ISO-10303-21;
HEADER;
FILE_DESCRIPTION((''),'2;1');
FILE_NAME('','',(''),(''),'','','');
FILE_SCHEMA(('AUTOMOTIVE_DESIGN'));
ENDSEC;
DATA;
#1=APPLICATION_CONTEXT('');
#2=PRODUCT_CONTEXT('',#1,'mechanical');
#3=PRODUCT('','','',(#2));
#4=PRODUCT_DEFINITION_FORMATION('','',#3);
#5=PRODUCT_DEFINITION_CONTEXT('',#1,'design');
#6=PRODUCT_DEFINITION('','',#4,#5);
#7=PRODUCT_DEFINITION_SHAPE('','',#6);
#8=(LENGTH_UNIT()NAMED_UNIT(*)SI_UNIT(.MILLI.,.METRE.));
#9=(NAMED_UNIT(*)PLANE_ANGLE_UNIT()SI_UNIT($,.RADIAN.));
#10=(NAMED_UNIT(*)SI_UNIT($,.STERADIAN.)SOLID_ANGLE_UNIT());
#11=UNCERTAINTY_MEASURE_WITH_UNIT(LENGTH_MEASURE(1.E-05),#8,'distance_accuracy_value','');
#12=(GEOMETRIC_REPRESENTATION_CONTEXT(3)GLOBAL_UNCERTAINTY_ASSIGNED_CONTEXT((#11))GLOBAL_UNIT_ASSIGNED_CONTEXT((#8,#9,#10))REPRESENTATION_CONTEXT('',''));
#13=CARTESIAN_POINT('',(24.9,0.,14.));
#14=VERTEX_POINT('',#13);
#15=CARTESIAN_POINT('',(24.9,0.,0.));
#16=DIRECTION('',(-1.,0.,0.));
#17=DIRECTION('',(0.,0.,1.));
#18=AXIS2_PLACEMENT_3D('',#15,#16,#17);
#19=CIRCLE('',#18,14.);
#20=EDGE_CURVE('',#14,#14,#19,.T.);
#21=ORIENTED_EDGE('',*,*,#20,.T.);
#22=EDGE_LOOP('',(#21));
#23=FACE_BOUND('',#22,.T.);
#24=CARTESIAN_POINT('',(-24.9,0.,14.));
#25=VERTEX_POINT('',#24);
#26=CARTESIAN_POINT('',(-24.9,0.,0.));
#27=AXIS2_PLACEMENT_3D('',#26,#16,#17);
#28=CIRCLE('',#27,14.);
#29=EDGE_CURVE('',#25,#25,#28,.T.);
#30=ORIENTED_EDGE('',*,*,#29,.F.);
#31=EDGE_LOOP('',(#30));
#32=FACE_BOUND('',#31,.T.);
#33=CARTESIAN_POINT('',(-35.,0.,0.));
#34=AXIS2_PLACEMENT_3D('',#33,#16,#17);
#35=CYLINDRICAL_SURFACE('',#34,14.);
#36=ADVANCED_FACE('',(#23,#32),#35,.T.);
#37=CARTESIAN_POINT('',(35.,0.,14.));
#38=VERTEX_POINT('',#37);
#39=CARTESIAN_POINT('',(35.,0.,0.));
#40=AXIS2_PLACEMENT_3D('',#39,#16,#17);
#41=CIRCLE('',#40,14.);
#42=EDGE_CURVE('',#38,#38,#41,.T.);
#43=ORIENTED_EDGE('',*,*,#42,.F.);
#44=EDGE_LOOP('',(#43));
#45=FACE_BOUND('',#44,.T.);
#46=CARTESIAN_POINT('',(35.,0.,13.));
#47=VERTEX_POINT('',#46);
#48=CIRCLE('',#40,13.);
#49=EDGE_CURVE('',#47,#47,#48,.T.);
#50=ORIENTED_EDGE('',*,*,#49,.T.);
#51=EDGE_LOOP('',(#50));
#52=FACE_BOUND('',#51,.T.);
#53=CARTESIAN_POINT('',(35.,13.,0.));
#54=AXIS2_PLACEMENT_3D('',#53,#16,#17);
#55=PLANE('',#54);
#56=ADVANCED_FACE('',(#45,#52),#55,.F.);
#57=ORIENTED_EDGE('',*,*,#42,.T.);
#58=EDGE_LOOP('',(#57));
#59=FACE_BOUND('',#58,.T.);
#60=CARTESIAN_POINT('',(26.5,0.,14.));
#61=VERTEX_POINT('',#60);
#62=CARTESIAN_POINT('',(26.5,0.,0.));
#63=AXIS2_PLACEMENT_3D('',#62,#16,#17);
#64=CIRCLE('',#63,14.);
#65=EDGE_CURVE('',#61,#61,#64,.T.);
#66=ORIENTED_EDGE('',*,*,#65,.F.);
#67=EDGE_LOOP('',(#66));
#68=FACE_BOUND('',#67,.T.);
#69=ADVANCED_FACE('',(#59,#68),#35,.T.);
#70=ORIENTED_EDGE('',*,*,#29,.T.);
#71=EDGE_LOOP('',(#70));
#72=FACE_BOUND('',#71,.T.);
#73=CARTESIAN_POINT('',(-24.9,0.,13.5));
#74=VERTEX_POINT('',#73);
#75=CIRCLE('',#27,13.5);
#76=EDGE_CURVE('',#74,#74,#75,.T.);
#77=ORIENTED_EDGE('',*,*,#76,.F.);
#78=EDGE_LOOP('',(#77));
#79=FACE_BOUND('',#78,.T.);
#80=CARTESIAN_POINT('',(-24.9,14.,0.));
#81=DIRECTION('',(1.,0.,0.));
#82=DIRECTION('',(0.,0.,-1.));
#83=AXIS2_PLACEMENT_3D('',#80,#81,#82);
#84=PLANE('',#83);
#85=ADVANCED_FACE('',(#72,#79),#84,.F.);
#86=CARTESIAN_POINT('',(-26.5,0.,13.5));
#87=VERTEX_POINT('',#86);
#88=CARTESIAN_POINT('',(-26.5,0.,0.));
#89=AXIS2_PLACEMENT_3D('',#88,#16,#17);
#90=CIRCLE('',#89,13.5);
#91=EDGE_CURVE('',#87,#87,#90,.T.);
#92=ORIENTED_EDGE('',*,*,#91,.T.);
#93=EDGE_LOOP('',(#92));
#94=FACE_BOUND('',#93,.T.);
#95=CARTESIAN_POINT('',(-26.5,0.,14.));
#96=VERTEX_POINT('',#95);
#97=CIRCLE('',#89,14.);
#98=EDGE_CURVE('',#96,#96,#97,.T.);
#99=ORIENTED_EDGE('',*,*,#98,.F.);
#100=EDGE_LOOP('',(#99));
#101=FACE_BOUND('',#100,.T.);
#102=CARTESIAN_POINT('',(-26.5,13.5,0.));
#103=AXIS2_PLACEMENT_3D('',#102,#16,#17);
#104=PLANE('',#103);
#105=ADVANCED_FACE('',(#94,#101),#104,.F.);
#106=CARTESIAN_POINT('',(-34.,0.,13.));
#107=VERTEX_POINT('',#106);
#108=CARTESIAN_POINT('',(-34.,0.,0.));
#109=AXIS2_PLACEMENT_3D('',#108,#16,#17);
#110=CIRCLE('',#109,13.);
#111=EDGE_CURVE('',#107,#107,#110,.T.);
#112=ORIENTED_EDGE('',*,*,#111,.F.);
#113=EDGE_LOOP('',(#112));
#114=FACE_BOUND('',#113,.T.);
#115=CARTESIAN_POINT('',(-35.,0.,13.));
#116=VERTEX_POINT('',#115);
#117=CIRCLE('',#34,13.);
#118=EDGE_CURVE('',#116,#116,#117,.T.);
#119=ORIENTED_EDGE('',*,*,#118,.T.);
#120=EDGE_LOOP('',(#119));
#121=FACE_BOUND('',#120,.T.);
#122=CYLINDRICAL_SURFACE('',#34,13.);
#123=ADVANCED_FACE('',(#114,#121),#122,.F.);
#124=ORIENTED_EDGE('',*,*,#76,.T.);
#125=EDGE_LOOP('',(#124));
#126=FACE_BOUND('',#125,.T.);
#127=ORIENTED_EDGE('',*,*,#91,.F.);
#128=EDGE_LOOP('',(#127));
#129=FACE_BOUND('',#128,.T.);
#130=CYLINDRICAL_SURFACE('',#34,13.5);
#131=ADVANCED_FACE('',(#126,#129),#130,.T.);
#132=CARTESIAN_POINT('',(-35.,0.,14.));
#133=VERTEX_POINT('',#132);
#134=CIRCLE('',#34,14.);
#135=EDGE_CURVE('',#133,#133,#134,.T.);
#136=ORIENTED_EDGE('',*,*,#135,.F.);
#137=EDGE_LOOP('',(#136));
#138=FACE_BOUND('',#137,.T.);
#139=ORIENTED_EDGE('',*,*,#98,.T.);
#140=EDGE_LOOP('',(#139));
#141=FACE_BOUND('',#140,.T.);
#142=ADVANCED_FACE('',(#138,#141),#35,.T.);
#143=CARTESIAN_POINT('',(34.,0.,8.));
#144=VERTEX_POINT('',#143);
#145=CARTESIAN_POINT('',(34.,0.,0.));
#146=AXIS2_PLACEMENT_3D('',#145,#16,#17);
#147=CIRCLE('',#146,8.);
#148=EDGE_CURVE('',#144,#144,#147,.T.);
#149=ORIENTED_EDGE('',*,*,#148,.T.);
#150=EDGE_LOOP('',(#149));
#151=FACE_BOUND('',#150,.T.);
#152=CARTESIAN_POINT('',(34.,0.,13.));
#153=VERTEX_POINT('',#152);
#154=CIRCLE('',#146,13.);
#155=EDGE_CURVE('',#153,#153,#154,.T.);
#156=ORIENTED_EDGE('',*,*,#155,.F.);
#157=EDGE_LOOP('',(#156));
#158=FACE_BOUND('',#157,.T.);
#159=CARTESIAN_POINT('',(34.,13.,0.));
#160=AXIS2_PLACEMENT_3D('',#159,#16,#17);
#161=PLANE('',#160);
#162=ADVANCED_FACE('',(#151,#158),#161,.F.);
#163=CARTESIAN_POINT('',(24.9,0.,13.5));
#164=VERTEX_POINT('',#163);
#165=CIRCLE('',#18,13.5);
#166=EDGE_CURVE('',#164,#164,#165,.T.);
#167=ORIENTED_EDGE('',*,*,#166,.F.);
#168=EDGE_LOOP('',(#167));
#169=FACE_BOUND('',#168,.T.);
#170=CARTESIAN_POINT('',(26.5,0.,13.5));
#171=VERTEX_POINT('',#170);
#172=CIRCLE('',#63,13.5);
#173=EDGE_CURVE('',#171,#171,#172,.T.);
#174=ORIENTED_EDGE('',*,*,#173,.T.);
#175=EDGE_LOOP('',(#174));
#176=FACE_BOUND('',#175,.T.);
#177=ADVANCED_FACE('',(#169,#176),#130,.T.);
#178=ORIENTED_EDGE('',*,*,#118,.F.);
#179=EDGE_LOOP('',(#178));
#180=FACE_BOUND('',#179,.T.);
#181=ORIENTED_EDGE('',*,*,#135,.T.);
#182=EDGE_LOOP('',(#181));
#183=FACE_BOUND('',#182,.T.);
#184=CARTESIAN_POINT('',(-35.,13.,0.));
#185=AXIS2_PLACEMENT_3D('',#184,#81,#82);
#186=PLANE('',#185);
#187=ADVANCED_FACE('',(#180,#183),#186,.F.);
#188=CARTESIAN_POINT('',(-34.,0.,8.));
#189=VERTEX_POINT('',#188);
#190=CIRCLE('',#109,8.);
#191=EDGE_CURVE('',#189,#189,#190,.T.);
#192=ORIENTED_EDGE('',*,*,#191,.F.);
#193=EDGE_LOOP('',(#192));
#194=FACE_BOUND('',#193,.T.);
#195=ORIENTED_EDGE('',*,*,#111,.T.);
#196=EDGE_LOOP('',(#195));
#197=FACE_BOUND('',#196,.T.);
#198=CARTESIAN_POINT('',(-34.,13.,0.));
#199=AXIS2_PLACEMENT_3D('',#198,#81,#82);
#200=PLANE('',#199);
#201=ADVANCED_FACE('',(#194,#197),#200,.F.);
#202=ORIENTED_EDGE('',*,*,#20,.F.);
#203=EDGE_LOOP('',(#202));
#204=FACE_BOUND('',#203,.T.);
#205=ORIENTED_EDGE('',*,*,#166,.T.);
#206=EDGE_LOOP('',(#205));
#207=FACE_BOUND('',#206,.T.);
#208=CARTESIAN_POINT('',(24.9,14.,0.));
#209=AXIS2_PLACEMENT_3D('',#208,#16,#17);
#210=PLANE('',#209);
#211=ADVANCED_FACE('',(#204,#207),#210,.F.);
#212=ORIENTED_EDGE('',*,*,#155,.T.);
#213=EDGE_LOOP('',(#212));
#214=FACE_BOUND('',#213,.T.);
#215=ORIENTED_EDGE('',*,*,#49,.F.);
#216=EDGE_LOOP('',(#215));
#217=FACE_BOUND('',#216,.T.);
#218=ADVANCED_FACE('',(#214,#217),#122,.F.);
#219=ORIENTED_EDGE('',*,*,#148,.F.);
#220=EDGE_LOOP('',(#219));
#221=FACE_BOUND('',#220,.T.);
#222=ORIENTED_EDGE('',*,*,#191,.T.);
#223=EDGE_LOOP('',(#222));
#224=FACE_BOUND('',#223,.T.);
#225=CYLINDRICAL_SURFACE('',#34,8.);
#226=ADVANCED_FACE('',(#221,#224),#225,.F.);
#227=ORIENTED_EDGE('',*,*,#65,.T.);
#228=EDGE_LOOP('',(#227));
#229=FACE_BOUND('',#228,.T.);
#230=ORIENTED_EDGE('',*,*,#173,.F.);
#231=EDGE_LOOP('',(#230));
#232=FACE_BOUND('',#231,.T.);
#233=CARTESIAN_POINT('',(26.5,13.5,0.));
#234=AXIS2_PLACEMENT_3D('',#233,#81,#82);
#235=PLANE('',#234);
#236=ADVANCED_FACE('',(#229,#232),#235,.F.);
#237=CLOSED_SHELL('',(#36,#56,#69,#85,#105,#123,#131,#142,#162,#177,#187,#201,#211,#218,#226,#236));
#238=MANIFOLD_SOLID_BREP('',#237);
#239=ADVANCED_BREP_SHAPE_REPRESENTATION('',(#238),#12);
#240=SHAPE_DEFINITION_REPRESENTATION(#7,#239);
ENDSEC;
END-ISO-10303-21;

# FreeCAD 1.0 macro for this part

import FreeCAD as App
import Part
import Sketcher

doc = App.newDocument("Part")
body = doc.addObject("PartDesign::Body", "Body")

# Sketch on XY plane
sketch1 = body.newObject("Sketcher::SketchObject", "Sketch")
sketch1.AttachmentSupport = (doc.getObject("XY_Plane"), [""])
sketch1.MapMode = "FlatFace"
sketch1.addGeometry([
    Part.LineSegment(App.Vector(24.9, 13.5, 0), App.Vector(24.9, 14, 0)),  # 0
    Part.LineSegment(App.Vector(24.9, 14, 0), App.Vector(-24.9, 14, 0)),  # 1
    Part.LineSegment(App.Vector(-24.9, 14, 0), App.Vector(-24.9, 13.5, 0)),  # 2
    Part.LineSegment(App.Vector(-24.9, 13.5, 0), App.Vector(-26.5, 13.5, 0)),  # 3
    Part.LineSegment(App.Vector(-26.5, 13.5, 0), App.Vector(-26.5, 14, 0)),  # 4
    Part.LineSegment(App.Vector(-26.5, 14, 0), App.Vector(-35, 14, 0)),  # 5
    Part.LineSegment(App.Vector(-35, 14, 0), App.Vector(-35, 13, 0)),  # 6
    Part.LineSegment(App.Vector(-35, 13, 0), App.Vector(-34, 13, 0)),  # 7
    Part.LineSegment(App.Vector(-34, 13, 0), App.Vector(-34, 8, 0)),  # 8
    Part.LineSegment(App.Vector(-34, 8, 0), App.Vector(34, 8, 0)),  # 9
    Part.LineSegment(App.Vector(34, 8, 0), App.Vector(34, 13, 0)),  # 10
    Part.LineSegment(App.Vector(34, 13, 0), App.Vector(35, 13, 0)),  # 11
    Part.LineSegment(App.Vector(35, 13, 0), App.Vector(35, 14, 0)),  # 12
    Part.LineSegment(App.Vector(35, 14, 0), App.Vector(26.5, 14, 0)),  # 13
    Part.LineSegment(App.Vector(26.5, 14, 0), App.Vector(26.5, 13.5, 0)),  # 14
    Part.LineSegment(App.Vector(26.5, 13.5, 0), App.Vector(24.9, 13.5, 0)),  # 15
], False)
sketch1.addConstraint([
    Sketcher.Constraint("Coincident", 0, 2, 1, 1),
    Sketcher.Constraint("Coincident", 1, 2, 2, 1),
    Sketcher.Constraint("Coincident", 2, 2, 3, 1),
    Sketcher.Constraint("Coincident", 3, 2, 4, 1),
    Sketcher.Constraint("Coincident", 4, 2, 5, 1),
    Sketcher.Constraint("Coincident", 5, 2, 6, 1),
    Sketcher.Constraint("Coincident", 6, 2, 7, 1),
    Sketcher.Constraint("Coincident", 7, 2, 8, 1),
    Sketcher.Constraint("Coincident", 8, 2, 9, 1),
    Sketcher.Constraint("Coincident", 9, 2, 10, 1),
    Sketcher.Constraint("Coincident", 10, 2, 11, 1),
    Sketcher.Constraint("Coincident", 11, 2, 12, 1),
    Sketcher.Constraint("Coincident", 12, 2, 13, 1),
    Sketcher.Constraint("Coincident", 13, 2, 14, 1),
    Sketcher.Constraint("Coincident", 14, 2, 15, 1),
    Sketcher.Constraint("Coincident", 15, 2, 0, 1),
    Sketcher.Constraint("Vertical", 0),
    Sketcher.Constraint("Horizontal", 1),
    Sketcher.Constraint("Vertical", 2),
    Sketcher.Constraint("Horizontal", 3),
    Sketcher.Constraint("Vertical", 4),
    Sketcher.Constraint("Horizontal", 5),
    Sketcher.Constraint("Vertical", 6),
    Sketcher.Constraint("Horizontal", 7),
    Sketcher.Constraint("Vertical", 8),
    Sketcher.Constraint("Horizontal", 9),
    Sketcher.Constraint("Vertical", 10),
    Sketcher.Constraint("Horizontal", 11),
    Sketcher.Constraint("Vertical", 12),
    Sketcher.Constraint("Horizontal", 13),
    Sketcher.Constraint("Vertical", 14),
    Sketcher.Constraint("Horizontal", 15),
    Sketcher.Constraint("Symmetric", 7, 2, 10, 2, -2),
    Sketcher.Constraint("Symmetric", 5, 2, 12, 2, -2),
    Sketcher.Constraint("Symmetric", 3, 2, 14, 2, -2),
    Sketcher.Constraint("Horizontal", 1, 2, 4, 2),
    Sketcher.Constraint("Equal", 3, 15),
    Sketcher.Constraint("Equal", 11, 6),
    Sketcher.Constraint("DistanceX", 7, 1, 7, 2, 1.0),
    Sketcher.Constraint("DistanceX", 9, 1, 9, 2, 68.0),
    Sketcher.Constraint("DistanceY", 8, 2, 8, 1, 5.0),
    Sketcher.Constraint("DistanceX", 1, 2, 1, 1, 49.8),
    Sketcher.Constraint("DistanceX", 3, 2, 3, 1, 1.6),
    Sketcher.Constraint("DistanceY", 0, 1, 0, 2, 0.5),
    Sketcher.Constraint("DistanceY", -1, 1, 0, 2, 14.0),
])
revolution = body.newObject("PartDesign::Revolution", "Revolution")
revolution.Profile = sketch1
revolution.ReferenceAxis = (sketch1, ["H_Axis"])
revolution.Angle = 360

doc.recompute()
